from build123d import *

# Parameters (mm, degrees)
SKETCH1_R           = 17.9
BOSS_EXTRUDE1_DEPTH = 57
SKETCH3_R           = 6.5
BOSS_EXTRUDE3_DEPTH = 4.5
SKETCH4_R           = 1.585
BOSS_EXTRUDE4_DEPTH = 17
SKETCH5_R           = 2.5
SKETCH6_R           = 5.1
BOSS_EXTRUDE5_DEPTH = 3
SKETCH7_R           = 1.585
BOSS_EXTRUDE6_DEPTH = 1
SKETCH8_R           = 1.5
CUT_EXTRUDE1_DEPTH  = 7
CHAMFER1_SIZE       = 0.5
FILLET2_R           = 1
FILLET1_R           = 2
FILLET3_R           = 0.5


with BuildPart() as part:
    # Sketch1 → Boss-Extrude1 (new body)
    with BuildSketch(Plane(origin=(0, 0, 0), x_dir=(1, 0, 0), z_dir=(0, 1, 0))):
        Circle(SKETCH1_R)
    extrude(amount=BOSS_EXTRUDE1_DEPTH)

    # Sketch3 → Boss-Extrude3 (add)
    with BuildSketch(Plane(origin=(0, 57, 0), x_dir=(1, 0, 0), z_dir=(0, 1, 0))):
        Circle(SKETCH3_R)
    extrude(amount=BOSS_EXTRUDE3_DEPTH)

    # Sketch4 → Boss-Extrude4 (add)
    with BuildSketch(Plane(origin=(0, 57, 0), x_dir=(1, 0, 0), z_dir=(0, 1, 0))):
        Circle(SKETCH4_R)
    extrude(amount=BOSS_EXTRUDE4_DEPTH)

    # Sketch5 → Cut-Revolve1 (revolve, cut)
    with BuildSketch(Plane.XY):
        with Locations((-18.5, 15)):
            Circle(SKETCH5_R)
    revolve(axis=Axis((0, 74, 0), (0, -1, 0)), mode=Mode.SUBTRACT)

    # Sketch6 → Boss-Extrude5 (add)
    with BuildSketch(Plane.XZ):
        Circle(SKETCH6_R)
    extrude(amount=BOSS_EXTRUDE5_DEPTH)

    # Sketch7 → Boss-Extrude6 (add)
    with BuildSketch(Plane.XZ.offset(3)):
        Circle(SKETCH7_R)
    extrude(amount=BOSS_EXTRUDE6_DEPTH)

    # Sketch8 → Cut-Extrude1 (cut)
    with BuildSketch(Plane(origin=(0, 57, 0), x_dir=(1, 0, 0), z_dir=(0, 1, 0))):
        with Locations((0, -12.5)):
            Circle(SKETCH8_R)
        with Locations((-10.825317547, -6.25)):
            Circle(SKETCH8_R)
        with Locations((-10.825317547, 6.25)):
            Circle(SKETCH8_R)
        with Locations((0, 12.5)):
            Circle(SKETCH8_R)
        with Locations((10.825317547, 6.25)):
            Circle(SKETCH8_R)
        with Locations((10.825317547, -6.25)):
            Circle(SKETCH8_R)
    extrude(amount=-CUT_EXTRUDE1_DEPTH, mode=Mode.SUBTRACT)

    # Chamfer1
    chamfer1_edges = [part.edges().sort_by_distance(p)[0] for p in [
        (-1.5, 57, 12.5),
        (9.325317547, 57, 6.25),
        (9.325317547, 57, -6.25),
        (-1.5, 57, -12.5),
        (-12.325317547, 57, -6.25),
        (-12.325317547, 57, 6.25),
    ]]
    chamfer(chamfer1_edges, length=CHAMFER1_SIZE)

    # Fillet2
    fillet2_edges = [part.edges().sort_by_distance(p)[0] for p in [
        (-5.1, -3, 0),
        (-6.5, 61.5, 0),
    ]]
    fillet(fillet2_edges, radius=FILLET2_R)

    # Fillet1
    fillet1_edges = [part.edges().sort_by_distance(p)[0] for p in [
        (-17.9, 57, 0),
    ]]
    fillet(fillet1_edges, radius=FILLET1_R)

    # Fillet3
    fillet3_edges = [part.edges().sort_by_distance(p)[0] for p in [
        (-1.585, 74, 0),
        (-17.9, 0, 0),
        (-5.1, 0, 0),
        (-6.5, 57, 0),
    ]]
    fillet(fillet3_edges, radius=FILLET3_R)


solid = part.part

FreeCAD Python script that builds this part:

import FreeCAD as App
import Part
import Sketcher

V = App.Vector


def edges_at(feature, points):
    """Names of the edges that pass closest to the given points."""
    edges = feature.Shape.Edges
    near = lambda p: min(range(len(edges)), key=lambda i: edges[i].distToShape(Part.Vertex(*p))[0])
    return sorted({f"Edge{near(p) + 1}" for p in points})

doc = App.newDocument("Part")
params = doc.addObject("Spreadsheet::Sheet", "Params")
for row, (alias, value) in enumerate([
    ("sketch1_diameter", "35.8 mm"),
    ("pad1_length", "57 mm"),
    ("sketch2_diameter", "13 mm"),
    ("pad2_length", "4.5 mm"),
    ("sketch3_diameter", "3.17 mm"),
    ("pad3_length", "17 mm"),
    ("sketch4_diameter", "5 mm"),
    ("groove_angle", "360 deg"),
    ("sketch5_diameter", "10.2 mm"),
    ("pad4_length", "3 mm"),
    ("sketch6_diameter", "3.17 mm"),
    ("pad5_length", "1 mm"),
    ("sketch7_diameter", "3 mm"),
    ("pocket1_length", "7 mm"),
    ("chamfer_size", "0.5 mm"),
    ("fillet_radius", "1 mm"),
    ("fillet2_radius", "2 mm"),
    ("fillet3_radius", "0.5 mm"),
], start=1):
    params.set(f"A{row}", alias)
    params.set(f"B{row}", "=" + value)
    params.setAlias(f"B{row}", alias)

body = doc.addObject("PartDesign::Body", "Body")

# Sketch on XZ plane
sketch1 = doc.addObject("Sketcher::SketchObject", "Sketch")
body.addObject(sketch1)
sketch1.AttachmentSupport = (doc.XZ_Plane, [""])
sketch1.MapMode = "FlatFace"
sketch1.addGeometry(Part.Circle(V(0, 0, 0), V(0, 0, 1), 18), False)
sketch1.addConstraint(Sketcher.Constraint("Coincident", 0, 3, -1, 1))
sketch1.addConstraint(Sketcher.Constraint("Diameter", 0, 35.8))
sketch1.setExpression("Constraints[1]", "Params.sketch1_diameter")
pad1 = doc.addObject("PartDesign::Pad", "Pad")
body.addObject(pad1)
pad1.Profile = sketch1
pad1.setExpression("Length", "Params.pad1_length")
pad1.Reversed = True

# Sketch on XZ plane
sketch2 = doc.addObject("Sketcher::SketchObject", "Sketch001")
body.addObject(sketch2)
sketch2.AttachmentSupport = (doc.XZ_Plane, [""])
sketch2.MapMode = "FlatFace"
sketch2.AttachmentOffset = App.Placement(V(0, 0, -57), App.Rotation())
sketch2.addGeometry(Part.Circle(V(0, 0, 0), V(0, 0, 1), 6), False)
sketch2.addConstraint(Sketcher.Constraint("Coincident", 0, 3, -1, 1))
sketch2.addConstraint(Sketcher.Constraint("Diameter", 0, 13.0))
sketch2.setExpression("Constraints[1]", "Params.sketch2_diameter")
pad2 = doc.addObject("PartDesign::Pad", "Pad001")
body.addObject(pad2)
pad2.Profile = sketch2
pad2.setExpression("Length", "Params.pad2_length")
pad2.Reversed = True

# Sketch on XZ plane
sketch3 = doc.addObject("Sketcher::SketchObject", "Sketch002")
body.addObject(sketch3)
sketch3.AttachmentSupport = (doc.XZ_Plane, [""])
sketch3.MapMode = "FlatFace"
sketch3.AttachmentOffset = App.Placement(V(0, 0, -57), App.Rotation())
sketch3.addGeometry(Part.Circle(V(0, 0, 0), V(0, 0, 1), 1.6), False)
sketch3.addConstraint(Sketcher.Constraint("Coincident", 0, 3, -1, 1))
sketch3.addConstraint(Sketcher.Constraint("Diameter", 0, 3.17))
sketch3.setExpression("Constraints[1]", "Params.sketch3_diameter")
pad3 = doc.addObject("PartDesign::Pad", "Pad002")
body.addObject(pad3)
pad3.Profile = sketch3
pad3.setExpression("Length", "Params.pad3_length")
pad3.Reversed = True

# Sketch on XY plane
sketch4 = doc.addObject("Sketcher::SketchObject", "Sketch003")
body.addObject(sketch4)
sketch4.AttachmentSupport = (doc.XY_Plane, [""])
sketch4.MapMode = "FlatFace"
sketch4.addGeometry(Part.Circle(V(-18.5, 15, 0), V(0, 0, 1), 2.5), False)
sketch4.addConstraint(Sketcher.Constraint("Diameter", 0, 5.0))
sketch4.addConstraint(Sketcher.Constraint("DistanceY", -1, 1, 0, 3, 15.0))
sketch4.addConstraint(Sketcher.Constraint("DistanceX", 0, 3, -1, 1, 18.5))
sketch4.setExpression("Constraints[0]", "Params.sketch4_diameter")
groove = doc.addObject("PartDesign::Groove", "Groove")
body.addObject(groove)
groove.Profile = sketch4
groove.ReferenceAxis = (sketch4, ["V_Axis"])
groove.setExpression("Angle", "Params.groove_angle")

# Sketch on XZ plane
sketch5 = doc.addObject("Sketcher::SketchObject", "Sketch004")
body.addObject(sketch5)
sketch5.AttachmentSupport = (doc.XZ_Plane, [""])
sketch5.MapMode = "FlatFace"
sketch5.addGeometry(Part.Circle(V(0, 0, 0), V(0, 0, 1), 5), False)
sketch5.addConstraint(Sketcher.Constraint("Coincident", 0, 3, -1, 1))
sketch5.addConstraint(Sketcher.Constraint("Diameter", 0, 10.2))
sketch5.setExpression("Constraints[1]", "Params.sketch5_diameter")
pad4 = doc.addObject("PartDesign::Pad", "Pad003")
body.addObject(pad4)
pad4.Profile = sketch5
pad4.setExpression("Length", "Params.pad4_length")

# Sketch on XZ plane
sketch6 = doc.addObject("Sketcher::SketchObject", "Sketch005")
body.addObject(sketch6)
sketch6.AttachmentSupport = (doc.XZ_Plane, [""])
sketch6.MapMode = "FlatFace"
sketch6.AttachmentOffset = App.Placement(V(0, 0, 3), App.Rotation())
sketch6.addGeometry(Part.Circle(V(0, 0, 0), V(0, 0, 1), 1.6), False)
sketch6.addConstraint(Sketcher.Constraint("Coincident", 0, 3, -1, 1))
sketch6.addConstraint(Sketcher.Constraint("Diameter", 0, 3.17))
sketch6.setExpression("Constraints[1]", "Params.sketch6_diameter")
pad5 = doc.addObject("PartDesign::Pad", "Pad004")
body.addObject(pad5)
pad5.Profile = sketch6
pad5.setExpression("Length", "Params.pad5_length")

# Sketch on XZ plane
sketch7 = doc.addObject("Sketcher::SketchObject", "Sketch006")
body.addObject(sketch7)
sketch7.AttachmentSupport = (doc.XZ_Plane, [""])
sketch7.MapMode = "FlatFace"
sketch7.AttachmentOffset = App.Placement(V(0, 0, -57), App.Rotation())
sketch7.addGeometry(Part.Circle(V(0, 12.5, 0), V(0, 0, 1), 1.5), False)
sketch7.addGeometry(Part.Circle(V(-10.8, 6.2, 0), V(0, 0, 1), 1.5), False)
sketch7.addGeometry(Part.Circle(V(-10.8, -6.2, 0), V(0, 0, 1), 1.5), False)
sketch7.addGeometry(Part.Circle(V(0, -12.5, 0), V(0, 0, 1), 1.5), False)
sketch7.addGeometry(Part.Circle(V(10.8, -6.2, 0), V(0, 0, 1), 1.5), False)
sketch7.addGeometry(Part.Circle(V(10.8, 6.2, 0), V(0, 0, 1), 1.5), False)
sketch7.addConstraint(Sketcher.Constraint("Equal", 0, 1))
sketch7.addConstraint(Sketcher.Constraint("Equal", 1, 2))
sketch7.addConstraint(Sketcher.Constraint("Equal", 2, 3))
sketch7.addConstraint(Sketcher.Constraint("Equal", 3, 4))
sketch7.addConstraint(Sketcher.Constraint("Equal", 4, 5))
sketch7.addConstraint(Sketcher.Constraint("Symmetric", 0, 3, 3, 3, -1, 1))
sketch7.addConstraint(Sketcher.Constraint("Symmetric", 1, 3, 4, 3, -1, 1))
sketch7.addConstraint(Sketcher.Constraint("Symmetric", 2, 3, 5, 3, -1, 1))
sketch7.addConstraint(Sketcher.Constraint("Symmetric", 2, 3, 4, 3, -2))
sketch7.addConstraint(Sketcher.Constraint("PointOnObject", 0, 3, -2))
sketch7.addConstraint(Sketcher.Constraint("Diameter", 0, 3.0))
sketch7.addConstraint(Sketcher.Constraint("DistanceY", 3, 3, 0, 3, 25.0))
sketch7.addConstraint(Sketcher.Constraint("DistanceY", 2, 3, 1, 3, 12.5))
sketch7.addConstraint(Sketcher.Constraint("DistanceX", 1, 3, -1, 1, 10.825318))
sketch7.setExpression("Constraints[10]", "Params.sketch7_diameter")
pocket1 = doc.addObject("PartDesign::Pocket", "Pocket")
body.addObject(pocket1)
pocket1.Profile = sketch7
pocket1.setExpression("Length", "Params.pocket1_length")
pocket1.Reversed = True
doc.recompute()

chamfer = doc.addObject("PartDesign::Chamfer", "Chamfer")
body.addObject(chamfer)
chamfer.Base = (pocket1, edges_at(pocket1, [
    (-1.5, 57, 12.5),
    (9.325, 57, 6.25),
    (9.325, 57, -6.25),
    (-1.5, 57, -12.5),
    (-12.325, 57, -6.25),
    (-12.325, 57, 6.25),
]))
chamfer.setExpression("Size", "Params.chamfer_size")
doc.recompute()

fillet = doc.addObject("PartDesign::Fillet", "Fillet")
body.addObject(fillet)
fillet.Base = (chamfer, edges_at(chamfer, [(-5.1, -3, 0), (-6.5, 61.5, 0)]))
fillet.setExpression("Radius", "Params.fillet_radius")
doc.recompute()

fillet2 = doc.addObject("PartDesign::Fillet", "Fillet001")
body.addObject(fillet2)
fillet2.Base = (fillet, edges_at(fillet, [(-17.9, 57, 0)]))
fillet2.setExpression("Radius", "Params.fillet2_radius")
doc.recompute()

fillet3 = doc.addObject("PartDesign::Fillet", "Fillet002")
body.addObject(fillet3)
fillet3.Base = (fillet2, edges_at(fillet2, [
    (-1.585, 74, 0),
    (-17.9, 0, 0),
    (-5.1, 0, 0),
    (-6.5, 57, 0),
]))
fillet3.setExpression("Radius", "Params.fillet3_radius")

doc.recompute()
